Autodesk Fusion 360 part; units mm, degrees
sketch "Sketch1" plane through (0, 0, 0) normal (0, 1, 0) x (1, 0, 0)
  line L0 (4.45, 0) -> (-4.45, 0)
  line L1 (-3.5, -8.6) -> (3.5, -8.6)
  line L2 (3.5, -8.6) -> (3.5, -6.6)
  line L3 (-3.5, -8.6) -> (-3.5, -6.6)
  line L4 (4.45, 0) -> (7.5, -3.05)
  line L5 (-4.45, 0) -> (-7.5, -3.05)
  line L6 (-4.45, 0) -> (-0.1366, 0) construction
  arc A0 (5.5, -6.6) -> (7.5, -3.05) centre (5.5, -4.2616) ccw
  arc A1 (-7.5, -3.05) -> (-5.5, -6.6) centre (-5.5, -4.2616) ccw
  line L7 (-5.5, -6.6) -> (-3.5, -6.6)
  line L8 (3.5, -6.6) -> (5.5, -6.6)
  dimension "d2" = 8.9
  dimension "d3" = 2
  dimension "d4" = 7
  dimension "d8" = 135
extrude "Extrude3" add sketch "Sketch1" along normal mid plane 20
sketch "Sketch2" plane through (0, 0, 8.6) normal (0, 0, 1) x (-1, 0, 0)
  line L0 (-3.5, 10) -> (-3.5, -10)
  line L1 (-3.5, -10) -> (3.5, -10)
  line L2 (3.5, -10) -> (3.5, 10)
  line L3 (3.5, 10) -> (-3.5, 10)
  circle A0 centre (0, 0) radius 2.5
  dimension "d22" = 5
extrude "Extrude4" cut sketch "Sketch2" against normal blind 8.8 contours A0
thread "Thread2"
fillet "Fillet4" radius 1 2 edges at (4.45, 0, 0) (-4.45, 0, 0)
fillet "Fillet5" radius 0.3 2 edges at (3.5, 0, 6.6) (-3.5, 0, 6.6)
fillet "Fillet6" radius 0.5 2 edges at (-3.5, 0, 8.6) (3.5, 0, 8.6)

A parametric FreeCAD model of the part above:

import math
import FreeCAD as App
import Part
import Sketcher
from FreeCAD import Vector


def edges_at(feature, points):
    """Names of the edges that pass closest to the given points."""
    edges = feature.Shape.Edges
    near = lambda p: min(range(len(edges)), key=lambda i: edges[i].distToShape(Part.Vertex(*p))[0])
    return sorted({f"Edge{near(p) + 1}" for p in points})

doc = App.newDocument("Part")
body = doc.addObject("PartDesign::Body", "Body")

# Sketch on XZ plane
sketch1 = body.newObject("Sketcher::SketchObject", "Sketch")
sketch1.AttachmentSupport = (doc.getObject("XZ_Plane"), [""])
sketch1.MapMode = "FlatFace"
sketch1.addGeometry(Part.LineSegment(Vector(7.5, 3, 0), Vector(4.5, 0, 0)), False)
sketch1.addGeometry(Part.LineSegment(Vector(4.5, 0, 0), Vector(-4.5, 0, 0)), False)
sketch1.addGeometry(Part.LineSegment(Vector(-4.5, 0, 0), Vector(-7.5, 3, 0)), False)
sketch1.addGeometry(Part.ArcOfCircle(Part.Circle(Vector(-5.5, 4.3, 0), Vector(0, 0, 1), 2.3), math.radians(90), math.radians(211)), False)
sketch1.addGeometry(Part.LineSegment(Vector(-5.5, 6.6, 0), Vector(-3.5, 6.6, 0)), False)
sketch1.addGeometry(Part.LineSegment(Vector(-3.5, 6.6, 0), Vector(-3.5, 8.6, 0)), False)
sketch1.addGeometry(Part.LineSegment(Vector(-3.5, 8.6, 0), Vector(3.5, 8.6, 0)), False)
sketch1.addGeometry(Part.LineSegment(Vector(3.5, 8.6, 0), Vector(3.5, 6.6, 0)), False)
sketch1.addGeometry(Part.LineSegment(Vector(3.5, 6.6, 0), Vector(5.5, 6.6, 0)), False)
sketch1.addGeometry(Part.ArcOfCircle(Part.Circle(Vector(5.5, 4.3, 0), Vector(0, 0, 1), 2.3), math.radians(-31), math.radians(90)), False)
sketch1.addConstraint(Sketcher.Constraint("Coincident", 0, 2, 1, 1))
sketch1.addConstraint(Sketcher.Constraint("Coincident", 1, 2, 2, 1))
sketch1.addConstraint(Sketcher.Constraint("Coincident", 2, 2, 3, 2))
sketch1.addConstraint(Sketcher.Constraint("Tangent", 3, 1, 4, 1))
sketch1.addConstraint(Sketcher.Constraint("Coincident", 4, 2, 5, 1))
sketch1.addConstraint(Sketcher.Constraint("Coincident", 5, 2, 6, 1))
sketch1.addConstraint(Sketcher.Constraint("Coincident", 6, 2, 7, 1))
sketch1.addConstraint(Sketcher.Constraint("Coincident", 7, 2, 8, 1))
sketch1.addConstraint(Sketcher.Constraint("Tangent", 8, 2, 9, 2))
sketch1.addConstraint(Sketcher.Constraint("Coincident", 9, 1, 0, 1))
sketch1.addConstraint(Sketcher.Constraint("Horizontal", 1))
sketch1.addConstraint(Sketcher.Constraint("Horizontal", 4))
sketch1.addConstraint(Sketcher.Constraint("Vertical", 5))
sketch1.addConstraint(Sketcher.Constraint("Horizontal", 6))
sketch1.addConstraint(Sketcher.Constraint("Vertical", 7))
sketch1.addConstraint(Sketcher.Constraint("Horizontal", 8))
sketch1.addConstraint(Sketcher.Constraint("Equal", 3, 9))
sketch1.addConstraint(Sketcher.Constraint("Symmetric", 0, 2, 1, 2, -1, 1))
sketch1.addConstraint(Sketcher.Constraint("Symmetric", 3, 3, 9, 3, -2))
sketch1.addConstraint(Sketcher.Constraint("Perpendicular", 0, 2))
sketch1.addConstraint(Sketcher.Constraint("Horizontal", 2, 2, 9, 1))
sketch1.addConstraint(Sketcher.Constraint("Equal", 4, 8))
sketch1.addConstraint(Sketcher.Constraint("Equal", 8, 5))
sketch1.addConstraint(Sketcher.Constraint("DistanceX", 4, 1, 4, 2, 2.0))
sketch1.addConstraint(Sketcher.Constraint("DistanceX", 6, 1, 6, 2, 7.0))
sketch1.addConstraint(Sketcher.Constraint("DistanceX", 1, 2, 1, 1, 8.9))
sketch1.addConstraint(Sketcher.Constraint("DistanceX", 2, 2, 3, 3, 2.0))
sketch1.addConstraint(Sketcher.Constraint("DistanceY", -1, 1, 3, 1, 6.6))
pad1 = body.newObject("PartDesign::Pad", "Pad")
pad1.Profile = sketch1
pad1.Length = 20
pad1.Midplane = True

# Sketch on XY plane
sketch2 = body.newObject("Sketcher::SketchObject", "Sketch001")
sketch2.AttachmentSupport = (doc.getObject("XY_Plane"), [""])
sketch2.MapMode = "FlatFace"
sketch2.AttachmentOffset = App.Placement(Vector(0, 0, 8.6), App.Rotation())
sketch2.addGeometry(Part.Circle(Vector(0, 0, 0), Vector(0, 0, 1), 2.5), False)
sketch2.addConstraint(Sketcher.Constraint("Coincident", 0, 3, -1, 1))
sketch2.addConstraint(Sketcher.Constraint("Diameter", 0, 5.0))
pocket1 = body.newObject("PartDesign::Pocket", "Pocket")
pocket1.Profile = sketch2
pocket1.Length = 8.8
doc.recompute()

fillet = body.newObject("PartDesign::Fillet", "Fillet")
fillet.Base = (pocket1, edges_at(pocket1, [(4.45, 0, 0), (-4.45, 0, 0)]))
fillet.Radius = 1
doc.recompute()

fillet2 = body.newObject("PartDesign::Fillet", "Fillet001")
fillet2.Base = (fillet, edges_at(fillet, [(3.5, 0, 6.6), (-3.5, 0, 6.6)]))
fillet2.Radius = 0.3
doc.recompute()

fillet3 = body.newObject("PartDesign::Fillet", "Fillet002")
fillet3.Base = (fillet2, edges_at(fillet2, [(-3.5, 0, 8.6), (3.5, 0, 8.6)]))
fillet3.Radius = 0.5

doc.recompute()
